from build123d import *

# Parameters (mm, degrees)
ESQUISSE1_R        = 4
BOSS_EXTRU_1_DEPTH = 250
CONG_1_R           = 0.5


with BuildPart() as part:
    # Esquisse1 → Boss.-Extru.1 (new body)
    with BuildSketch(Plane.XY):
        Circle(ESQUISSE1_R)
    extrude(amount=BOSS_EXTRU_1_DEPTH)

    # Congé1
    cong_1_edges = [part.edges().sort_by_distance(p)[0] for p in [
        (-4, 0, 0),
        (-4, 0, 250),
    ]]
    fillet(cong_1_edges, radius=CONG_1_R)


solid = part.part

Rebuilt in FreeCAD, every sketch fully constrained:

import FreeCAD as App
import Part
import Sketcher

V = App.Vector
Q = App.Units.Quantity


def edges_at(feature, points):
    """Names of the edges that pass closest to the given points."""
    edges = feature.Shape.Edges
    near = lambda p: min(range(len(edges)), key=lambda i: edges[i].distToShape(Part.Vertex(*p))[0])
    return sorted({f"Edge{near(p) + 1}" for p in points})

doc = App.newDocument("Part")
params = doc.addObject("Spreadsheet::Sheet", "Params")
for row, (alias, value) in enumerate([
    ("sketch1_diameter", "8 mm"),
    ("pad1_length", "250 mm"),
    ("fillet_radius", "0.5 mm"),
], start=1):
    params.set(f"A{row}", alias)
    params.set(f"B{row}", "=" + value)
    params.setAlias(f"B{row}", alias)

body = doc.addObject("PartDesign::Body", "Body")

sketch1 = body.newObject("Sketcher::SketchObject", "Sketch")
sketch1.AttachmentSupport = (doc.getObject("XY_Plane"), [""])
sketch1.MapMode = "FlatFace"
sketch1.addGeometry(Part.Circle(V(0, 0, 0), V(0, 0, 1), 4), False)
sketch1.addConstraint([
    Sketcher.Constraint("Coincident", 0, 3, -1, 1),
    Sketcher.Constraint("Diameter", 0, Q("8 mm")),
])
sketch1.setExpression("Constraints[1]", "Params.sketch1_diameter")
pad1 = body.newObject("PartDesign::Pad", "Pad")
pad1.Profile = sketch1
pad1.setExpression("Length", "Params.pad1_length")
doc.recompute()

fillet = body.newObject("PartDesign::Fillet", "Fillet")
fillet.Base = (pad1, edges_at(pad1, [(-4, 0, 0), (-4, 0, 250)]))
fillet.setExpression("Radius", "Params.fillet_radius")

doc.recompute()
